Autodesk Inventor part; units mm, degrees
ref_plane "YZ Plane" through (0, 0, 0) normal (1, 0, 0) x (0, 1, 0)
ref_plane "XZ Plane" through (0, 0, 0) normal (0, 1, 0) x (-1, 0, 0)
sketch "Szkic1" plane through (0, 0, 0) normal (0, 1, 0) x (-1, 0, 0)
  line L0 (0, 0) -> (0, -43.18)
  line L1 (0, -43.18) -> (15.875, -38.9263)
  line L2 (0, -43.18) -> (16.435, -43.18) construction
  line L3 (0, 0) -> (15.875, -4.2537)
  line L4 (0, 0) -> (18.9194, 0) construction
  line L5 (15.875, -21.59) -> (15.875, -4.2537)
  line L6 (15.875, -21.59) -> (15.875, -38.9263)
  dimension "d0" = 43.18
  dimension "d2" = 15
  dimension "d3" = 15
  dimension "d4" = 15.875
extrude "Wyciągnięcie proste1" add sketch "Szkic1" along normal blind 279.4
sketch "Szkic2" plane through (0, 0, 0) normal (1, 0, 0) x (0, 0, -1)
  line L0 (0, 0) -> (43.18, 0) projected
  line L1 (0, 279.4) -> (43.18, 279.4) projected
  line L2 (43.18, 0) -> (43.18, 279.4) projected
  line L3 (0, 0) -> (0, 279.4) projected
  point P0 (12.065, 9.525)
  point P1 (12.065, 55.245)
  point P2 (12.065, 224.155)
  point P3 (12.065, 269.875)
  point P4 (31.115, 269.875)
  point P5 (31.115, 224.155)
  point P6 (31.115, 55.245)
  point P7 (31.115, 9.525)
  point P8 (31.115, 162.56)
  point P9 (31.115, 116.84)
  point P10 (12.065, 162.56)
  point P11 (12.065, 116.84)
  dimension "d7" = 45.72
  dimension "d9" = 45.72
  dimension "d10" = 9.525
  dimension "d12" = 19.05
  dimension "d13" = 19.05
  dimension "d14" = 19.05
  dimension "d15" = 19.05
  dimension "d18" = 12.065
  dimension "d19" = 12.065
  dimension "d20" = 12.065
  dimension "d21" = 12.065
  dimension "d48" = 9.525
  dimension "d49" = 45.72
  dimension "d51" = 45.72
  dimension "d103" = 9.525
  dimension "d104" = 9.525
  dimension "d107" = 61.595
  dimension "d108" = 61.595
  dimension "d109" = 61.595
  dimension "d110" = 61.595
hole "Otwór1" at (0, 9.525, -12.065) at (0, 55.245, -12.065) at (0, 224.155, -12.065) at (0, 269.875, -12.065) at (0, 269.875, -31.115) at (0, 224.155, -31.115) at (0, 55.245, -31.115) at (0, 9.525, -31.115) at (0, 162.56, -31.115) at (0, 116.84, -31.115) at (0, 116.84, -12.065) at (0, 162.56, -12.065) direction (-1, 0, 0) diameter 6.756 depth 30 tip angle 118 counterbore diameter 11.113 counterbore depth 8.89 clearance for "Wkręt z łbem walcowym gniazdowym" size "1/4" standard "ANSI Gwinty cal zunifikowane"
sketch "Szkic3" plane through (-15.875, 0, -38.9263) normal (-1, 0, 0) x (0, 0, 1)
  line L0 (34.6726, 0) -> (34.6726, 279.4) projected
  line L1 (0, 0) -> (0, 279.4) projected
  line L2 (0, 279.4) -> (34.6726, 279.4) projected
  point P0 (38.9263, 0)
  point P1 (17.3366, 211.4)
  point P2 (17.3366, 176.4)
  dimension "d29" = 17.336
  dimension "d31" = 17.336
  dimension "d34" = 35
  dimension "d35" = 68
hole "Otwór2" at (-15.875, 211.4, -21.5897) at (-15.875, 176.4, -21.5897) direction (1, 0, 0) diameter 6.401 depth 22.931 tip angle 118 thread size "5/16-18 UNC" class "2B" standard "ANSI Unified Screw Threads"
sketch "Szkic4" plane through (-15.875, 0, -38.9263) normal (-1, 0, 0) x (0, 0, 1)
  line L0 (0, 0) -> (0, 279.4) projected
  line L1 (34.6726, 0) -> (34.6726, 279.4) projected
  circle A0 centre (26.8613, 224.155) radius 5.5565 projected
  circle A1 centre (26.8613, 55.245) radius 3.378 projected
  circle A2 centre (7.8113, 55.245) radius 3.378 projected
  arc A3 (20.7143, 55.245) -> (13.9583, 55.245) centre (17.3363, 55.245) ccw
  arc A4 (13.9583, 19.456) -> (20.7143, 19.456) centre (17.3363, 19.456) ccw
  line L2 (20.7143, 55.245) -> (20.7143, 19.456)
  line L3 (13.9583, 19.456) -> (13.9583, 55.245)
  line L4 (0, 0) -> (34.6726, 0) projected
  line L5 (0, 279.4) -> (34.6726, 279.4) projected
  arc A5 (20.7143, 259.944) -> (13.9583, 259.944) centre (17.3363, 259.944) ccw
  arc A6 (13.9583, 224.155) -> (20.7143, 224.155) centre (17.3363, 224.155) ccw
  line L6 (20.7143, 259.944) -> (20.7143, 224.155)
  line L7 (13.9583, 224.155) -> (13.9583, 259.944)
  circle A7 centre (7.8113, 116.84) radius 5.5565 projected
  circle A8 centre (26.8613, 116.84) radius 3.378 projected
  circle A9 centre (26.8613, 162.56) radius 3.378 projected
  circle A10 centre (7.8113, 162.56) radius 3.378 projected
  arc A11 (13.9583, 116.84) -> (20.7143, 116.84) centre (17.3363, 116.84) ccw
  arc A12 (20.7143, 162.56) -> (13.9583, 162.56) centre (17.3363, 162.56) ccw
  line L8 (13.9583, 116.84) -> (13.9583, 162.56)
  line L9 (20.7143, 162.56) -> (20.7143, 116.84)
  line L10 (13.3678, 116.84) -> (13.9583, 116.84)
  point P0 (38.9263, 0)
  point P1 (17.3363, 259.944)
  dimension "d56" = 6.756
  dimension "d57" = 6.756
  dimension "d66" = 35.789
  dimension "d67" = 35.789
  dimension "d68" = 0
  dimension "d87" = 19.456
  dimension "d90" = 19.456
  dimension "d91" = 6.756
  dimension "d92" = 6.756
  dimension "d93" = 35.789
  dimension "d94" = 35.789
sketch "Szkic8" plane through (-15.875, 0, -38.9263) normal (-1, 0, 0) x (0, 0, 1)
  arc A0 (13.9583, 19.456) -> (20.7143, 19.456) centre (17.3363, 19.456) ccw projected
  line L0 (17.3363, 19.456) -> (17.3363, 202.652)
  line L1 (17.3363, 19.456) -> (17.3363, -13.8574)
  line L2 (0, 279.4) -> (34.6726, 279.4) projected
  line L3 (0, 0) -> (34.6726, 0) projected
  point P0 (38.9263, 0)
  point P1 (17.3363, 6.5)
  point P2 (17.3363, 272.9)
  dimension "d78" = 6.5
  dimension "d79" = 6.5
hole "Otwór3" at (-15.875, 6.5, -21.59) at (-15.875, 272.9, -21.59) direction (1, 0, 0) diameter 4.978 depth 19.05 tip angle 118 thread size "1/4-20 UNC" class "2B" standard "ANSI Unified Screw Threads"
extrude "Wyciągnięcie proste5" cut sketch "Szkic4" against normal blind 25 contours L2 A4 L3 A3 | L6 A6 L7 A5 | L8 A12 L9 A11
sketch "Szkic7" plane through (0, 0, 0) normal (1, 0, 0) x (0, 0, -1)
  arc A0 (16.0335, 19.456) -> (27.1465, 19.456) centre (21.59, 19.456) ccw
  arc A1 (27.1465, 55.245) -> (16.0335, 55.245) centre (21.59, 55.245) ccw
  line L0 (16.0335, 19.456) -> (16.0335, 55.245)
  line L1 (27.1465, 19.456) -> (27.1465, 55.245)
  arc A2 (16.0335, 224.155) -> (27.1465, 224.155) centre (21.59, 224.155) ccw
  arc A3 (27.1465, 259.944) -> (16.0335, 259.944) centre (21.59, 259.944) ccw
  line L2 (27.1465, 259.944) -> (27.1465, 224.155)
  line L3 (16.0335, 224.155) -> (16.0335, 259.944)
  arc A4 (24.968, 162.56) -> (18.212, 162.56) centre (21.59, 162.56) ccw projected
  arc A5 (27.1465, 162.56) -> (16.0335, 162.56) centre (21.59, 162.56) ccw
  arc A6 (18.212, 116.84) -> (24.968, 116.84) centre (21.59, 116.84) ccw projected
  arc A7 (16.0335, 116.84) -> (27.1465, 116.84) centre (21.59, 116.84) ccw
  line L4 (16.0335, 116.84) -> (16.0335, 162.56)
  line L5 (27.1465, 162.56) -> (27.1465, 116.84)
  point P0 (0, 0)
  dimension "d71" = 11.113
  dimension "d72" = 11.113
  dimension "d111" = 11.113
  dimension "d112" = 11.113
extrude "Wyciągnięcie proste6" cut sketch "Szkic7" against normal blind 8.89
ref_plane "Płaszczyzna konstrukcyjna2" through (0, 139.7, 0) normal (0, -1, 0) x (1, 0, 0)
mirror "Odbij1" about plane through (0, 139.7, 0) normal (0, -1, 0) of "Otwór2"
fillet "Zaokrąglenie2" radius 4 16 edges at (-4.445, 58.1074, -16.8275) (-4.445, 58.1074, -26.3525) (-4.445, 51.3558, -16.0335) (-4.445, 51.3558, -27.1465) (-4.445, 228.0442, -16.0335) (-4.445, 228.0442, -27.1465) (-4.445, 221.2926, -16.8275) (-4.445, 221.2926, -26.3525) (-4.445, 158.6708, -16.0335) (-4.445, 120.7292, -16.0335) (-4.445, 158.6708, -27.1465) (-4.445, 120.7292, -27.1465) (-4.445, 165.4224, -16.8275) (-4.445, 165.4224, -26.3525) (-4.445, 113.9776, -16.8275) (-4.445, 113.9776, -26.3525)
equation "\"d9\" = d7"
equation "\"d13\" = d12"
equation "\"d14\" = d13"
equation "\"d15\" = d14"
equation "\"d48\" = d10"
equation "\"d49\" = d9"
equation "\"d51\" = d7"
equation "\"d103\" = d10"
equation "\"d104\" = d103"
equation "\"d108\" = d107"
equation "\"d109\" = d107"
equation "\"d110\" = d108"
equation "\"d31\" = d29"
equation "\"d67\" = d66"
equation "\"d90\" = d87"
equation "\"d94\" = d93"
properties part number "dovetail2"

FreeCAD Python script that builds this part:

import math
import FreeCAD as App
import Part
import Sketcher
Q = App.Units.Quantity


def edges_at(feature, points):
    """Names of the edges that pass closest to the given points."""
    edges = feature.Shape.Edges
    near = lambda p: min(range(len(edges)), key=lambda i: edges[i].distToShape(Part.Vertex(*p))[0])
    return sorted({f"Edge{near(p) + 1}" for p in points})

doc = App.newDocument("Part")
body = doc.addObject("PartDesign::Body", "Body")

# Sketch on XZ plane
sketch1 = body.newObject("Sketcher::SketchObject", "Sketch")
sketch1.AttachmentSupport = (doc.getObject("XZ_Plane"), [""])
sketch1.MapMode = "FlatFace"
sketch1.addGeometry([
    Part.LineSegment(App.Vector(-16, -4, 0), App.Vector(0, 0, 0)),
    Part.LineSegment(App.Vector(0, 0, 0), App.Vector(0, -43, 0)),
    Part.LineSegment(App.Vector(0, -43, 0), App.Vector(-16, -39, 0)),
    Part.LineSegment(App.Vector(-16, -39, 0), App.Vector(-16, -4, 0)),
], False)
sketch1.addConstraint([
    Sketcher.Constraint("Coincident", 0, 2, 1, 1),
    Sketcher.Constraint("Coincident", 1, 2, 2, 1),
    Sketcher.Constraint("Coincident", 2, 2, 3, 1),
    Sketcher.Constraint("Coincident", 3, 2, 0, 1),
    Sketcher.Constraint("Vertical", 1),
    Sketcher.Constraint("Vertical", 3),
    Sketcher.Constraint("Coincident", 0, 2, -1, 1),
    Sketcher.Constraint("Equal", 0, 2),
    Sketcher.Constraint("DistanceY", 1, 2, 1, 1, Q("1.7 in")),
    Sketcher.Constraint("Angle", 0, Q("15 deg")),
    Sketcher.Constraint("DistanceX", 2, 2, -1, 1, Q("0.625 in")),
])
pad1 = body.newObject("PartDesign::Pad", "Pad")
pad1.Profile = sketch1
pad1.Length = Q("11 in")
pad1.Reversed = True

# Sketch on YZ plane
sketch2 = body.newObject("Sketcher::SketchObject", "Sketch001")
sketch2.AttachmentSupport = (doc.getObject("YZ_Plane"), [""])
sketch2.MapMode = "FlatFace"
sketch2.addGeometry([
    Part.Circle(App.Vector(9.5, -12.1, 0), App.Vector(0, 0, 1), 3.4),  # 0
    Part.Circle(App.Vector(55.2, -12.1, 0), App.Vector(0, 0, 1), 3.4),  # 1
    Part.Circle(App.Vector(224.2, -12.1, 0), App.Vector(0, 0, 1), 3.4),  # 2
    Part.Circle(App.Vector(269.9, -12.1, 0), App.Vector(0, 0, 1), 3.4),  # 3
    Part.Circle(App.Vector(269.9, -31.1, 0), App.Vector(0, 0, 1), 3.4),  # 4
    Part.Circle(App.Vector(224.2, -31.1, 0), App.Vector(0, 0, 1), 3.4),  # 5
    Part.Circle(App.Vector(55.2, -31.1, 0), App.Vector(0, 0, 1), 3.4),  # 6
    Part.Circle(App.Vector(9.5, -31.1, 0), App.Vector(0, 0, 1), 3.4),  # 7
    Part.Circle(App.Vector(162.6, -31.1, 0), App.Vector(0, 0, 1), 3.4),  # 8
    Part.Circle(App.Vector(116.8, -31.1, 0), App.Vector(0, 0, 1), 3.4),  # 9
    Part.Circle(App.Vector(116.8, -12.1, 0), App.Vector(0, 0, 1), 3.4),  # 10
    Part.Circle(App.Vector(162.6, -12.1, 0), App.Vector(0, 0, 1), 3.4),  # 11
], False)
sketch2.addConstraint([
    Sketcher.Constraint("Equal", 0, 1),
    Sketcher.Constraint("Equal", 1, 2),
    Sketcher.Constraint("Equal", 2, 3),
    Sketcher.Constraint("Equal", 3, 4),
    Sketcher.Constraint("Equal", 4, 5),
    Sketcher.Constraint("Equal", 5, 6),
    Sketcher.Constraint("Equal", 6, 7),
    Sketcher.Constraint("Equal", 7, 8),
    Sketcher.Constraint("Equal", 8, 9),
    Sketcher.Constraint("Equal", 9, 10),
    Sketcher.Constraint("Equal", 10, 11),
    Sketcher.Constraint("Horizontal", 0, 3, 1, 3),
    Sketcher.Constraint("Horizontal", 1, 3, 2, 3),
    Sketcher.Constraint("Horizontal", 2, 3, 3, 3),
    Sketcher.Constraint("Horizontal", 4, 3, 5, 3),
    Sketcher.Constraint("Horizontal", 5, 3, 6, 3),
    Sketcher.Constraint("Horizontal", 6, 3, 7, 3),
    Sketcher.Constraint("Horizontal", 7, 3, 8, 3),
    Sketcher.Constraint("Horizontal", 8, 3, 9, 3),
    Sketcher.Constraint("Horizontal", 3, 3, 10, 3),
    Sketcher.Constraint("Horizontal", 10, 3, 11, 3),
    Sketcher.Constraint("Vertical", 3, 3, 4, 3),
    Sketcher.Constraint("Vertical", 2, 3, 5, 3),
    Sketcher.Constraint("Vertical", 1, 3, 6, 3),
    Sketcher.Constraint("Vertical", 0, 3, 7, 3),
    Sketcher.Constraint("Vertical", 9, 3, 10, 3),
    Sketcher.Constraint("Vertical", 8, 3, 11, 3),
    Sketcher.Constraint("DistanceX", -1, 1, 8, 3, Q("6.4 in")),
    Sketcher.Constraint("DistanceX", -1, 1, 9, 3, Q("4.6 in")),
    Sketcher.Constraint("DistanceX", 0, 3, 1, 3, Q("1.8 in")),
    Sketcher.Constraint("DistanceX", 2, 3, 3, 3, Q("1.8 in")),
    Sketcher.Constraint("Diameter", 0, Q("6.756 mm")),
    Sketcher.Constraint("DistanceX", 1, 3, 2, 3, Q("6.65 in")),
    Sketcher.Constraint("DistanceY", 4, 3, 3, 3, Q("0.75 in")),
    Sketcher.Constraint("DistanceX", -1, 1, 0, 3, Q("0.375 in")),
    Sketcher.Constraint("DistanceY", 0, 3, -1, 1, Q("0.475 in")),
])
doc.recompute()
hole = body.newObject("PartDesign::Hole", "Hole")
hole.Profile = sketch2
hole.ThreadType = "None"
hole.Diameter = 6.756
hole.DepthType = "Dimension"
hole.Depth = Q("1.1811024 in")
hole.DrillPoint = "Angled"
hole.DrillPointAngle = 118
hole.HoleCutType = "Counterbore"
hole.HoleCutDiameter = 11.113
hole.HoleCutDepth = Q("0.35 in")

# Sketch on YZ plane
sketch3 = body.newObject("Sketcher::SketchObject", "Sketch002")
sketch3.AttachmentSupport = (doc.getObject("YZ_Plane"), [""])
sketch3.MapMode = "FlatFace"
sketch3.AttachmentOffset = App.Placement(App.Vector(0, 0, -0.625 * 25.4), App.Rotation())
sketch3.addGeometry([
    Part.Circle(App.Vector(211.4, -21.6, 0), App.Vector(0, 0, 1), 3.2),
    Part.Circle(App.Vector(176.4, -21.6, 0), App.Vector(0, 0, 1), 3.2),
], False)
sketch3.addConstraint([
    Sketcher.Constraint("Equal", 0, 1),
    Sketcher.Constraint("Horizontal", 0, 3, 1, 3),
    Sketcher.Constraint("Diameter", 0, Q("0.252 in")),
    Sketcher.Constraint("DistanceY", 0, 3, -1, 1, Q("0.85 in")),
    Sketcher.Constraint("DistanceX", -1, 1, 0, 3, Q("211.4 mm")),
    Sketcher.Constraint("DistanceX", -1, 1, 1, 3, Q("176.4 mm")),
])
doc.recompute()
hole2 = body.newObject("PartDesign::Hole", "Hole001")
hole2.Profile = sketch3
hole2.ThreadType = "None"
hole2.Diameter = Q("0.2520079 in")
hole2.DepthType = "Dimension"
hole2.Depth = Q("0.9027953 in")
hole2.DrillPoint = "Angled"
hole2.DrillPointAngle = 118
hole2.Reversed = True

# Sketch on YZ plane
sketch4 = body.newObject("Sketcher::SketchObject", "Sketch003")
sketch4.AttachmentSupport = (doc.getObject("YZ_Plane"), [""])
sketch4.MapMode = "FlatFace"
sketch4.AttachmentOffset = App.Placement(App.Vector(0, 0, -0.625 * 25.4), App.Rotation())
sketch4.addGeometry([
    Part.Circle(App.Vector(6.5, -21.6, 0), App.Vector(0, 0, 1), 2.5),
    Part.Circle(App.Vector(272.9, -21.6, 0), App.Vector(0, 0, 1), 2.5),
], False)
sketch4.addConstraint([
    Sketcher.Constraint("Equal", 0, 1),
    Sketcher.Constraint("Horizontal", 0, 3, 1, 3),
    Sketcher.Constraint("Diameter", 0, Q("4.978 mm")),
    Sketcher.Constraint("DistanceY", 0, 3, -1, 1, Q("0.85 in")),
    Sketcher.Constraint("DistanceX", -1, 1, 0, 3, Q("0.2559 in")),
    Sketcher.Constraint("DistanceX", -1, 1, 1, 3, Q("10.7441 in")),
])
doc.recompute()
hole3 = body.newObject("PartDesign::Hole", "Hole002")
hole3.Profile = sketch4
hole3.ThreadType = "None"
hole3.Diameter = 4.978
hole3.DepthType = "Dimension"
hole3.Depth = Q("0.75 in")
hole3.DrillPoint = "Angled"
hole3.DrillPointAngle = 118
hole3.Reversed = True

# Sketch on YZ plane
sketch5 = body.newObject("Sketcher::SketchObject", "Sketch004")
sketch5.AttachmentSupport = (doc.getObject("YZ_Plane"), [""])
sketch5.MapMode = "FlatFace"
sketch5.AttachmentOffset = App.Placement(App.Vector(0, 0, -0.625 * 25.4), App.Rotation())
sketch5.addGeometry([
    Part.LineSegment(App.Vector(19.5, -18.2, 0), App.Vector(55.2, -18.2, 0)),  # 0
    Part.ArcOfCircle(Part.Circle(App.Vector(55.2, -21.6, 0), App.Vector(0, 0, 1), 3.4), math.radians(-90), math.radians(90)),  # 1
    Part.LineSegment(App.Vector(55.2, -25, 0), App.Vector(19.5, -25, 0)),  # 2
    Part.ArcOfCircle(Part.Circle(App.Vector(19.5, -21.6, 0), App.Vector(0, 0, 1), 3.4), math.radians(90), math.radians(270)),  # 3
    Part.LineSegment(App.Vector(224.2, -18.2, 0), App.Vector(259.9, -18.2, 0)),  # 4
    Part.ArcOfCircle(Part.Circle(App.Vector(259.9, -21.6, 0), App.Vector(0, 0, 1), 3.4), math.radians(-90), math.radians(90)),  # 5
    Part.LineSegment(App.Vector(259.9, -25, 0), App.Vector(224.2, -25, 0)),  # 6
    Part.ArcOfCircle(Part.Circle(App.Vector(224.2, -21.6, 0), App.Vector(0, 0, 1), 3.4), math.radians(90), math.radians(270)),  # 7
    Part.LineSegment(App.Vector(162.6, -25, 0), App.Vector(116.8, -25, 0)),  # 8
    Part.ArcOfCircle(Part.Circle(App.Vector(116.8, -21.6, 0), App.Vector(0, 0, 1), 3.4), math.radians(90), math.radians(270)),  # 9
    Part.LineSegment(App.Vector(116.8, -18.2, 0), App.Vector(162.6, -18.2, 0)),  # 10
    Part.ArcOfCircle(Part.Circle(App.Vector(162.6, -21.6, 0), App.Vector(0, 0, 1), 3.4), math.radians(-90), math.radians(90)),  # 11
], False)
sketch5.addConstraint([
    Sketcher.Constraint("Tangent", 0, 2, 1, 2),
    Sketcher.Constraint("Tangent", 1, 1, 2, 1),
    Sketcher.Constraint("Tangent", 2, 2, 3, 2),
    Sketcher.Constraint("Tangent", 3, 1, 0, 1),
    Sketcher.Constraint("Tangent", 4, 2, 5, 2),
    Sketcher.Constraint("Tangent", 5, 1, 6, 1),
    Sketcher.Constraint("Tangent", 6, 2, 7, 2),
    Sketcher.Constraint("Tangent", 7, 1, 4, 1),
    Sketcher.Constraint("Tangent", 8, 2, 9, 2),
    Sketcher.Constraint("Tangent", 9, 1, 10, 1),
    Sketcher.Constraint("Tangent", 10, 2, 11, 2),
    Sketcher.Constraint("Tangent", 11, 1, 8, 1),
    Sketcher.Constraint("Horizontal", 0),
    Sketcher.Constraint("Horizontal", 2),
    Sketcher.Constraint("Horizontal", 4),
    Sketcher.Constraint("Horizontal", 6),
    Sketcher.Constraint("Horizontal", 8),
    Sketcher.Constraint("Horizontal", 10),
    Sketcher.Constraint("Equal", 3, 5),
    Sketcher.Constraint("Equal", 7, 9),
    Sketcher.Constraint("Horizontal", 3, 3, 5, 3),
    Sketcher.Constraint("Horizontal", 7, 3, 9, 3),
    Sketcher.Constraint("Equal", 2, 4),
    Sketcher.Constraint("Radius", 1, Q("0.133 in")),
    Sketcher.Constraint("DistanceX", 8, 2, 8, 1, Q("1.8 in")),
    Sketcher.Constraint("DistanceX", 0, 1, 0, 2, Q("35.789 mm")),
    Sketcher.Constraint("DistanceX", -1, 1, 9, 3, Q("4.6 in")),
    Sketcher.Constraint("DistanceY", 1, 3, -1, 1, Q("0.85 in")),
    Sketcher.Constraint("DistanceX", -1, 1, 3, 3, Q("19.456 mm")),
    Sketcher.Constraint("DistanceX", 1, 3, 7, 3, Q("6.65 in")),
])
pocket1 = body.newObject("PartDesign::Pocket", "Pocket")
pocket1.Profile = sketch5
pocket1.Length = 25
pocket1.Reversed = True

# Sketch on YZ plane
sketch6 = body.newObject("Sketcher::SketchObject", "Sketch005")
sketch6.AttachmentSupport = (doc.getObject("YZ_Plane"), [""])
sketch6.MapMode = "FlatFace"
sketch6.addGeometry([
    Part.LineSegment(App.Vector(55, -16, 0), App.Vector(19, -16, 0)),  # 0
    Part.ArcOfCircle(Part.Circle(App.Vector(19, -22, 0), App.Vector(0, 0, 1), 6), math.radians(90), math.radians(270)),  # 1
    Part.LineSegment(App.Vector(19, -27, 0), App.Vector(55, -27, 0)),  # 2
    Part.ArcOfCircle(Part.Circle(App.Vector(55, -22, 0), App.Vector(0, 0, 1), 6), math.radians(-90), math.radians(90)),  # 3
    Part.LineSegment(App.Vector(260, -16, 0), App.Vector(224, -16, 0)),  # 4
    Part.ArcOfCircle(Part.Circle(App.Vector(224, -22, 0), App.Vector(0, 0, 1), 6), math.radians(90), math.radians(270)),  # 5
    Part.LineSegment(App.Vector(224, -27, 0), App.Vector(260, -27, 0)),  # 6
    Part.ArcOfCircle(Part.Circle(App.Vector(260, -22, 0), App.Vector(0, 0, 1), 6), math.radians(-90), math.radians(90)),  # 7
    Part.LineSegment(App.Vector(117, -27, 0), App.Vector(163, -27, 0)),  # 8
    Part.ArcOfCircle(Part.Circle(App.Vector(163, -22, 0), App.Vector(0, 0, 1), 6), math.radians(-90), math.radians(90)),  # 9
    Part.LineSegment(App.Vector(163, -16, 0), App.Vector(117, -16, 0)),  # 10
    Part.ArcOfCircle(Part.Circle(App.Vector(117, -22, 0), App.Vector(0, 0, 1), 6), math.radians(90), math.radians(270)),  # 11
], False)
sketch6.addConstraint([
    Sketcher.Constraint("Tangent", 0, 2, 1, 1),
    Sketcher.Constraint("Tangent", 1, 2, 2, 1),
    Sketcher.Constraint("Tangent", 2, 2, 3, 1),
    Sketcher.Constraint("Tangent", 3, 2, 0, 1),
    Sketcher.Constraint("Tangent", 4, 2, 5, 1),
    Sketcher.Constraint("Tangent", 5, 2, 6, 1),
    Sketcher.Constraint("Tangent", 6, 2, 7, 1),
    Sketcher.Constraint("Tangent", 7, 2, 4, 1),
    Sketcher.Constraint("Tangent", 8, 2, 9, 1),
    Sketcher.Constraint("Tangent", 9, 2, 10, 1),
    Sketcher.Constraint("Tangent", 10, 2, 11, 1),
    Sketcher.Constraint("Tangent", 11, 2, 8, 1),
    Sketcher.Constraint("Horizontal", 0),
    Sketcher.Constraint("Horizontal", 2),
    Sketcher.Constraint("Horizontal", 4),
    Sketcher.Constraint("Horizontal", 6),
    Sketcher.Constraint("Horizontal", 8),
    Sketcher.Constraint("Horizontal", 10),
    Sketcher.Constraint("Equal", 3, 5),
    Sketcher.Constraint("Equal", 7, 9),
    Sketcher.Constraint("Horizontal", 3, 3, 5, 3),
    Sketcher.Constraint("Horizontal", 7, 3, 9, 3),
    Sketcher.Constraint("Equal", 2, 4),
    Sketcher.Constraint("Radius", 1, Q("5.5565 mm")),
    Sketcher.Constraint("DistanceX", 8, 1, 8, 2, Q("1.8 in")),
    Sketcher.Constraint("DistanceX", -1, 1, 9, 3, Q("6.4 in")),
    Sketcher.Constraint("DistanceY", 1, 3, -1, 1, Q("0.85 in")),
    Sketcher.Constraint("DistanceX", 3, 3, 5, 3, Q("6.65 in")),
    Sketcher.Constraint("DistanceX", -1, 1, 3, 3, Q("2.175 in")),
    Sketcher.Constraint("DistanceX", 0, 2, 0, 1, Q("35.789 mm")),
])
pocket2 = body.newObject("PartDesign::Pocket", "Pocket001")
pocket2.Profile = sketch6
pocket2.Length = Q("0.35 in")
doc.recompute()

datumplane = body.newObject("PartDesign::Plane", "DatumPlane")
datumplane.AttachmentSupport = (doc.getObject("XZ_Plane"), [""])
datumplane.MapMode = "FlatFace"
datumplane.AttachmentOffset = App.Placement(App.Vector(0, 0, -5.5 * 25.4), App.Rotation())
mirrored = body.newObject("PartDesign::Mirrored", "Mirrored")
mirrored.Originals = [hole2]
mirrored.MirrorPlane = (datumplane, [""])
body.Tip = mirrored
doc.recompute()

fillet = body.newObject("PartDesign::Fillet", "Fillet")
fillet.Base = (mirrored, edges_at(mirrored, [
    (-4.445, 58.107, -16.828),
    (-4.445, 58.107, -26.352),
    (-4.445, 51.356, -16.034),
    (-4.445, 51.356, -27.146),
    (-4.445, 228.044, -16.034),
    (-4.445, 228.044, -27.146),
    (-4.445, 221.293, -16.828),
    (-4.445, 221.293, -26.352),
    (-4.445, 158.671, -16.034),
    (-4.445, 120.729, -16.034),
    (-4.445, 158.671, -27.146),
    (-4.445, 120.729, -27.146),
    (-4.445, 165.422, -16.828),
    (-4.445, 165.422, -26.352),
    (-4.445, 113.978, -16.828),
    (-4.445, 113.978, -26.352),
]))
fillet.Radius = 4

doc.recompute()
